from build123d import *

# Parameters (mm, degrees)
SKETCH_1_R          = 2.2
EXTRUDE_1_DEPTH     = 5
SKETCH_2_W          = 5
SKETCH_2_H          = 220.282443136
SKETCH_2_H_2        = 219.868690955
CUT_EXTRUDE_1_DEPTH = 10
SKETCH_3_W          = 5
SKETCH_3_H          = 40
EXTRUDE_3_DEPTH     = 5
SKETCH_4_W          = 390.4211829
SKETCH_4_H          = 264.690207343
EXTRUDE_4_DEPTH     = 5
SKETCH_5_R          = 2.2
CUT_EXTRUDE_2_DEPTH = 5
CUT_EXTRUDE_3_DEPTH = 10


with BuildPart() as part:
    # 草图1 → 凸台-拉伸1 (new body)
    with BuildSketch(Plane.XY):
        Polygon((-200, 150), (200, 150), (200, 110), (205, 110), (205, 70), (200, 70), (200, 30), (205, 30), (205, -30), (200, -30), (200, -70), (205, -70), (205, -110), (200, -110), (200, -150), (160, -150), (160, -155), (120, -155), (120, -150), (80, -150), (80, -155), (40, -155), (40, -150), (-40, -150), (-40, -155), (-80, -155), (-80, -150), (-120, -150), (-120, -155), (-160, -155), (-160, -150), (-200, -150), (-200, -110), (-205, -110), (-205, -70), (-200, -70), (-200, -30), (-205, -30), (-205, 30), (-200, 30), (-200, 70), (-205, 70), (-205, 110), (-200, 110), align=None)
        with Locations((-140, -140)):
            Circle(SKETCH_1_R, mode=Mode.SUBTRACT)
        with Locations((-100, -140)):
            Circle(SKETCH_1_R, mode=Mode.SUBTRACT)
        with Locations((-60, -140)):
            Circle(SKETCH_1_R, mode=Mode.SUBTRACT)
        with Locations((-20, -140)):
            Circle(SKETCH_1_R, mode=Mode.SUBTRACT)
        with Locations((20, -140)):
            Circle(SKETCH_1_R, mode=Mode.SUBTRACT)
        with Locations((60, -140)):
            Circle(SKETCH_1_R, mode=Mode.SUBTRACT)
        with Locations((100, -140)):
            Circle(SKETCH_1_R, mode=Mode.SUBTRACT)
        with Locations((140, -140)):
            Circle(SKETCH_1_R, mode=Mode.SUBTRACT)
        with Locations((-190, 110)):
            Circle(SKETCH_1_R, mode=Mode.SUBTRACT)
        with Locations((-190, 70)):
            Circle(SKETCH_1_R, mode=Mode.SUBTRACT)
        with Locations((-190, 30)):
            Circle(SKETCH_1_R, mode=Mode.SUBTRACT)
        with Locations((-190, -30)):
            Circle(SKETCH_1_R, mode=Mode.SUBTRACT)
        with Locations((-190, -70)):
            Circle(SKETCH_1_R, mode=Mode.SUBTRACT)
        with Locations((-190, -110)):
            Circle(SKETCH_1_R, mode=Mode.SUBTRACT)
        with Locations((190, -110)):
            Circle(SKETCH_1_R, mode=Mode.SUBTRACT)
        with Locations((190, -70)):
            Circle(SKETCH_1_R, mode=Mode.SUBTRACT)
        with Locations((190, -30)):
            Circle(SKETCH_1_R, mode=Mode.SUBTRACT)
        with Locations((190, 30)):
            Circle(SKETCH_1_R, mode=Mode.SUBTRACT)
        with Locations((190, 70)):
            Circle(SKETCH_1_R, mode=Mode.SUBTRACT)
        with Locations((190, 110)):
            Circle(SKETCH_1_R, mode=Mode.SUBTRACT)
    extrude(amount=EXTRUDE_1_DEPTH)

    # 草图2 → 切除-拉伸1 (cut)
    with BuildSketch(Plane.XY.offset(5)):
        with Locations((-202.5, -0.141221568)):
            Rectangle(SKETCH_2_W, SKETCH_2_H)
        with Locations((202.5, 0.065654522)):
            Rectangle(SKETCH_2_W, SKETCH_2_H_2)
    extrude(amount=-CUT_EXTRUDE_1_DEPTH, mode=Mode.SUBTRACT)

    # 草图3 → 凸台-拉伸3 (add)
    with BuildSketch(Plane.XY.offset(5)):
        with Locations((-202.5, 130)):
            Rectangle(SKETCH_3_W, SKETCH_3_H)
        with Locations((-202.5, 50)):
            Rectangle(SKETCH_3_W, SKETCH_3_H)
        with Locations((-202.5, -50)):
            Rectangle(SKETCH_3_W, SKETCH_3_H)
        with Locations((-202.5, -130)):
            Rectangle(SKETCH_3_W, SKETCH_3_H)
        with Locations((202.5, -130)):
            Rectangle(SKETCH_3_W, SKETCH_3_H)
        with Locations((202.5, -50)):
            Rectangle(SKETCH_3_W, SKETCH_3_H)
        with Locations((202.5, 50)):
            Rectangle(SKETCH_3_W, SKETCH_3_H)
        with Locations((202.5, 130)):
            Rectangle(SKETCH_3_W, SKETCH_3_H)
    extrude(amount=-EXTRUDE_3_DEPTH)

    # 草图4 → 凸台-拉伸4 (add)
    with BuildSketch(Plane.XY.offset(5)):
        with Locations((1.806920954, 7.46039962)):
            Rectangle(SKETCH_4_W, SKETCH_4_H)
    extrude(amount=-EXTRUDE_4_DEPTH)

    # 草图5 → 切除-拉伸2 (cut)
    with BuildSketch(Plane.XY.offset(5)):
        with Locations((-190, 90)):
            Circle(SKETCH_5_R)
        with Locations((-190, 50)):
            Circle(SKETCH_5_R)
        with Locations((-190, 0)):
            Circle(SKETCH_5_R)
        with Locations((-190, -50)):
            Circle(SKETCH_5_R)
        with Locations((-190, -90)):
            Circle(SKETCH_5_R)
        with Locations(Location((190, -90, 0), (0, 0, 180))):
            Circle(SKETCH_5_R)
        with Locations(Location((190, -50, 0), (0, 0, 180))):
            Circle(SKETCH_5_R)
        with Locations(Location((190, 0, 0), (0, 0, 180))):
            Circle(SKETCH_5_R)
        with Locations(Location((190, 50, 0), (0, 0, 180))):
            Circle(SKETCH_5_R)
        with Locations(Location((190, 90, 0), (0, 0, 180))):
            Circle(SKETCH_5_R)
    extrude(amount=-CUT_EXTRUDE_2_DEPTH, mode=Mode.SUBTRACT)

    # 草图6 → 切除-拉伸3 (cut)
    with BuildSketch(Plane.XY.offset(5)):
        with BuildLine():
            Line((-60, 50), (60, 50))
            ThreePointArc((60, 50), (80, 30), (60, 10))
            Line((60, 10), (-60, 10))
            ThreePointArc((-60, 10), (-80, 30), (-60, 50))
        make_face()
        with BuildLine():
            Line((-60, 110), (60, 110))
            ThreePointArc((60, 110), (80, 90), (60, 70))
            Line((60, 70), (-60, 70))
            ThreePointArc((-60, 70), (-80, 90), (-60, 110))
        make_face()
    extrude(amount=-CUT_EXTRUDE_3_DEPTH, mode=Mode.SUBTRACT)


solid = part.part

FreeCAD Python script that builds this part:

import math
import FreeCAD as App
import Part
import Sketcher
Q = App.Units.Quantity

doc = App.newDocument("Part")
body = doc.addObject("PartDesign::Body", "Body")

# Sketch on XY plane
sketch1 = body.newObject("Sketcher::SketchObject", "Sketch")
sketch1.AttachmentSupport = (doc.getObject("XY_Plane"), [""])
sketch1.MapMode = "FlatFace"
sketch1.addGeometry([
    Part.LineSegment(App.Vector(200, 150, 0), App.Vector(-200, 150, 0)),  # 0
    Part.LineSegment(App.Vector(-200, 150, 0), App.Vector(-200, 110, 0)),  # 1
    Part.LineSegment(App.Vector(-200, 110, 0), App.Vector(-205, 110, 0)),  # 2
    Part.LineSegment(App.Vector(-205, 110, 0), App.Vector(-205, 70, 0)),  # 3
    Part.LineSegment(App.Vector(-205, 70, 0), App.Vector(-200, 70, 0)),  # 4
    Part.LineSegment(App.Vector(-200, 70, 0), App.Vector(-200, 30, 0)),  # 5
    Part.LineSegment(App.Vector(-200, 30, 0), App.Vector(-205, 30, 0)),  # 6
    Part.LineSegment(App.Vector(-205, 30, 0), App.Vector(-205, -30, 0)),  # 7
    Part.LineSegment(App.Vector(-205, -30, 0), App.Vector(-200, -30, 0)),  # 8
    Part.LineSegment(App.Vector(-200, -30, 0), App.Vector(-200, -70, 0)),  # 9
    Part.LineSegment(App.Vector(-200, -70, 0), App.Vector(-205, -70, 0)),  # 10
    Part.LineSegment(App.Vector(-205, -70, 0), App.Vector(-205, -110, 0)),  # 11
    Part.LineSegment(App.Vector(-205, -110, 0), App.Vector(-200, -110, 0)),  # 12
    Part.LineSegment(App.Vector(-200, -110, 0), App.Vector(-200, -150, 0)),  # 13
    Part.LineSegment(App.Vector(-200, -150, 0), App.Vector(-160, -150, 0)),  # 14
    Part.LineSegment(App.Vector(-160, -150, 0), App.Vector(-160, -155, 0)),  # 15
    Part.LineSegment(App.Vector(-160, -155, 0), App.Vector(-120, -155, 0)),  # 16
    Part.LineSegment(App.Vector(-120, -155, 0), App.Vector(-120, -150, 0)),  # 17
    Part.LineSegment(App.Vector(-120, -150, 0), App.Vector(-80, -150, 0)),  # 18
    Part.LineSegment(App.Vector(-80, -150, 0), App.Vector(-80, -155, 0)),  # 19
    Part.LineSegment(App.Vector(-80, -155, 0), App.Vector(-40, -155, 0)),  # 20
    Part.LineSegment(App.Vector(-40, -155, 0), App.Vector(-40, -150, 0)),  # 21
    Part.LineSegment(App.Vector(-40, -150, 0), App.Vector(40, -150, 0)),  # 22
    Part.LineSegment(App.Vector(40, -150, 0), App.Vector(40, -155, 0)),  # 23
    Part.LineSegment(App.Vector(40, -155, 0), App.Vector(80, -155, 0)),  # 24
    Part.LineSegment(App.Vector(80, -155, 0), App.Vector(80, -150, 0)),  # 25
    Part.LineSegment(App.Vector(80, -150, 0), App.Vector(120, -150, 0)),  # 26
    Part.LineSegment(App.Vector(120, -150, 0), App.Vector(120, -155, 0)),  # 27
    Part.LineSegment(App.Vector(120, -155, 0), App.Vector(160, -155, 0)),  # 28
    Part.LineSegment(App.Vector(160, -155, 0), App.Vector(160, -150, 0)),  # 29
    Part.LineSegment(App.Vector(160, -150, 0), App.Vector(200, -150, 0)),  # 30
    Part.LineSegment(App.Vector(200, -150, 0), App.Vector(200, -110, 0)),  # 31
    Part.LineSegment(App.Vector(200, -110, 0), App.Vector(205, -110, 0)),  # 32
    Part.LineSegment(App.Vector(205, -110, 0), App.Vector(205, -70, 0)),  # 33
    Part.LineSegment(App.Vector(205, -70, 0), App.Vector(200, -70, 0)),  # 34
    Part.LineSegment(App.Vector(200, -70, 0), App.Vector(200, -30, 0)),  # 35
    Part.LineSegment(App.Vector(200, -30, 0), App.Vector(205, -30, 0)),  # 36
    Part.LineSegment(App.Vector(205, -30, 0), App.Vector(205, 30, 0)),  # 37
    Part.LineSegment(App.Vector(205, 30, 0), App.Vector(200, 30, 0)),  # 38
    Part.LineSegment(App.Vector(200, 30, 0), App.Vector(200, 70, 0)),  # 39
    Part.LineSegment(App.Vector(200, 70, 0), App.Vector(205, 70, 0)),  # 40
    Part.LineSegment(App.Vector(205, 70, 0), App.Vector(205, 110, 0)),  # 41
    Part.LineSegment(App.Vector(205, 110, 0), App.Vector(200, 110, 0)),  # 42
    Part.LineSegment(App.Vector(200, 110, 0), App.Vector(200, 150, 0)),  # 43
    Part.Circle(App.Vector(140, -140, 0), App.Vector(0, 0, 1), 2.2),  # 44
    Part.Circle(App.Vector(100, -140, 0), App.Vector(0, 0, 1), 2.2),  # 45
    Part.Circle(App.Vector(190, -110, 0), App.Vector(0, 0, 1), 2.2),  # 46
    Part.Circle(App.Vector(60, -140, 0), App.Vector(0, 0, 1), 2.2),  # 47
    Part.Circle(App.Vector(20, -140, 0), App.Vector(0, 0, 1), 2.2),  # 48
    Part.Circle(App.Vector(190, -70, 0), App.Vector(0, 0, 1), 2.2),  # 49
    Part.Circle(App.Vector(190, -30, 0), App.Vector(0, 0, 1), 2.2),  # 50
    Part.Circle(App.Vector(-20, -140, 0), App.Vector(0, 0, 1), 2.2),  # 51
    Part.Circle(App.Vector(-60, -140, 0), App.Vector(0, 0, 1), 2.2),  # 52
    Part.Circle(App.Vector(-100, -140, 0), App.Vector(0, 0, 1), 2.2),  # 53
    Part.Circle(App.Vector(-140, -140, 0), App.Vector(0, 0, 1), 2.2),  # 54
    Part.Circle(App.Vector(-190, -110, 0), App.Vector(0, 0, 1), 2.2),  # 55
    Part.Circle(App.Vector(-190, -70, 0), App.Vector(0, 0, 1), 2.2),  # 56
    Part.Circle(App.Vector(-190, -30, 0), App.Vector(0, 0, 1), 2.2),  # 57
    Part.Circle(App.Vector(190, 30, 0), App.Vector(0, 0, 1), 2.2),  # 58
    Part.Circle(App.Vector(190, 70, 0), App.Vector(0, 0, 1), 2.2),  # 59
    Part.Circle(App.Vector(190, 110, 0), App.Vector(0, 0, 1), 2.2),  # 60
    Part.Circle(App.Vector(-190, 30, 0), App.Vector(0, 0, 1), 2.2),  # 61
    Part.Circle(App.Vector(-190, 70, 0), App.Vector(0, 0, 1), 2.2),  # 62
    Part.Circle(App.Vector(-190, 110, 0), App.Vector(0, 0, 1), 2.2),  # 63
], False)
sketch1.addConstraint([
    Sketcher.Constraint("Coincident", 0, 2, 1, 1),
    Sketcher.Constraint("Coincident", 1, 2, 2, 1),
    Sketcher.Constraint("Coincident", 2, 2, 3, 1),
    Sketcher.Constraint("Coincident", 3, 2, 4, 1),
    Sketcher.Constraint("Coincident", 4, 2, 5, 1),
    Sketcher.Constraint("Coincident", 5, 2, 6, 1),
    Sketcher.Constraint("Coincident", 6, 2, 7, 1),
    Sketcher.Constraint("Coincident", 7, 2, 8, 1),
    Sketcher.Constraint("Coincident", 8, 2, 9, 1),
    Sketcher.Constraint("Coincident", 9, 2, 10, 1),
    Sketcher.Constraint("Coincident", 10, 2, 11, 1),
    Sketcher.Constraint("Coincident", 11, 2, 12, 1),
    Sketcher.Constraint("Coincident", 12, 2, 13, 1),
    Sketcher.Constraint("Coincident", 13, 2, 14, 1),
    Sketcher.Constraint("Coincident", 14, 2, 15, 1),
    Sketcher.Constraint("Coincident", 15, 2, 16, 1),
    Sketcher.Constraint("Coincident", 16, 2, 17, 1),
    Sketcher.Constraint("Coincident", 17, 2, 18, 1),
    Sketcher.Constraint("Coincident", 18, 2, 19, 1),
    Sketcher.Constraint("Coincident", 19, 2, 20, 1),
    Sketcher.Constraint("Coincident", 20, 2, 21, 1),
    Sketcher.Constraint("Coincident", 21, 2, 22, 1),
    Sketcher.Constraint("Coincident", 22, 2, 23, 1),
    Sketcher.Constraint("Coincident", 23, 2, 24, 1),
    Sketcher.Constraint("Coincident", 24, 2, 25, 1),
    Sketcher.Constraint("Coincident", 25, 2, 26, 1),
    Sketcher.Constraint("Coincident", 26, 2, 27, 1),
    Sketcher.Constraint("Coincident", 27, 2, 28, 1),
    Sketcher.Constraint("Coincident", 28, 2, 29, 1),
    Sketcher.Constraint("Coincident", 29, 2, 30, 1),
    Sketcher.Constraint("Coincident", 30, 2, 31, 1),
    Sketcher.Constraint("Coincident", 31, 2, 32, 1),
    Sketcher.Constraint("Coincident", 32, 2, 33, 1),
    Sketcher.Constraint("Coincident", 33, 2, 34, 1),
    Sketcher.Constraint("Coincident", 34, 2, 35, 1),
    Sketcher.Constraint("Coincident", 35, 2, 36, 1),
    Sketcher.Constraint("Coincident", 36, 2, 37, 1),
    Sketcher.Constraint("Coincident", 37, 2, 38, 1),
    Sketcher.Constraint("Coincident", 38, 2, 39, 1),
    Sketcher.Constraint("Coincident", 39, 2, 40, 1),
    Sketcher.Constraint("Coincident", 40, 2, 41, 1),
    Sketcher.Constraint("Coincident", 41, 2, 42, 1),
    Sketcher.Constraint("Coincident", 42, 2, 43, 1),
    Sketcher.Constraint("Coincident", 43, 2, 0, 1),
    Sketcher.Constraint("Horizontal", 0),
    Sketcher.Constraint("Vertical", 1),
    Sketcher.Constraint("Horizontal", 2),
    Sketcher.Constraint("Vertical", 3),
    Sketcher.Constraint("Horizontal", 4),
    Sketcher.Constraint("Vertical", 5),
    Sketcher.Constraint("Horizontal", 6),
    Sketcher.Constraint("Vertical", 7),
    Sketcher.Constraint("Horizontal", 8),
    Sketcher.Constraint("Vertical", 9),
    Sketcher.Constraint("Horizontal", 10),
    Sketcher.Constraint("Vertical", 11),
    Sketcher.Constraint("Horizontal", 12),
    Sketcher.Constraint("Vertical", 13),
    Sketcher.Constraint("Horizontal", 14),
    Sketcher.Constraint("Vertical", 15),
    Sketcher.Constraint("Horizontal", 16),
    Sketcher.Constraint("Vertical", 17),
    Sketcher.Constraint("Horizontal", 18),
    Sketcher.Constraint("Vertical", 19),
    Sketcher.Constraint("Horizontal", 20),
    Sketcher.Constraint("Vertical", 21),
    Sketcher.Constraint("Horizontal", 22),
    Sketcher.Constraint("Vertical", 23),
    Sketcher.Constraint("Horizontal", 24),
    Sketcher.Constraint("Vertical", 25),
    Sketcher.Constraint("Horizontal", 26),
    Sketcher.Constraint("Vertical", 27),
    Sketcher.Constraint("Horizontal", 28),
    Sketcher.Constraint("Vertical", 29),
    Sketcher.Constraint("Horizontal", 30),
    Sketcher.Constraint("Vertical", 31),
    Sketcher.Constraint("Horizontal", 32),
    Sketcher.Constraint("Vertical", 33),
    Sketcher.Constraint("Horizontal", 34),
    Sketcher.Constraint("Vertical", 35),
    Sketcher.Constraint("Horizontal", 36),
    Sketcher.Constraint("Vertical", 37),
    Sketcher.Constraint("Horizontal", 38),
    Sketcher.Constraint("Vertical", 39),
    Sketcher.Constraint("Horizontal", 40),
    Sketcher.Constraint("Vertical", 41),
    Sketcher.Constraint("Horizontal", 42),
    Sketcher.Constraint("Vertical", 43),
    Sketcher.Constraint("Equal", 44, 45),
    Sketcher.Constraint("Equal", 45, 46),
    Sketcher.Constraint("Equal", 46, 47),
    Sketcher.Constraint("Equal", 47, 48),
    Sketcher.Constraint("Equal", 48, 49),
    Sketcher.Constraint("Equal", 49, 50),
    Sketcher.Constraint("Equal", 50, 51),
    Sketcher.Constraint("Equal", 51, 52),
    Sketcher.Constraint("Equal", 52, 53),
    Sketcher.Constraint("Equal", 53, 54),
    Sketcher.Constraint("Equal", 54, 55),
    Sketcher.Constraint("Equal", 55, 56),
    Sketcher.Constraint("Equal", 56, 57),
    Sketcher.Constraint("Equal", 57, 58),
    Sketcher.Constraint("Equal", 58, 59),
    Sketcher.Constraint("Equal", 59, 60),
    Sketcher.Constraint("Equal", 60, 61),
    Sketcher.Constraint("Equal", 61, 62),
    Sketcher.Constraint("Equal", 62, 63),
    Sketcher.Constraint("Symmetric", 57, 3, 58, 3, -1, 1),
    Sketcher.Constraint("Symmetric", 56, 3, 59, 3, -1, 1),
    Sketcher.Constraint("Symmetric", 55, 3, 60, 3, -1, 1),
    Sketcher.Constraint("Symmetric", 50, 3, 61, 3, -1, 1),
    Sketcher.Constraint("Symmetric", 49, 3, 62, 3, -1, 1),
    Sketcher.Constraint("Symmetric", 46, 3, 63, 3, -1, 1),
    Sketcher.Constraint("Symmetric", 0, 2, 30, 2, -1, 1),
    Sketcher.Constraint("Symmetric", 2, 2, 32, 2, -1, 1),
    Sketcher.Constraint("Symmetric", 4, 2, 34, 2, -1, 1),
    Sketcher.Constraint("Symmetric", 6, 2, 36, 2, -1, 1),
    Sketcher.Constraint("Symmetric", 8, 2, 38, 2, -1, 1),
    Sketcher.Constraint("Symmetric", 10, 2, 40, 2, -1, 1),
    Sketcher.Constraint("Symmetric", 12, 2, 42, 2, -1, 1),
    Sketcher.Constraint("Symmetric", 48, 3, 51, 3, -2),
    Sketcher.Constraint("Symmetric", 47, 3, 52, 3, -2),
    Sketcher.Constraint("Symmetric", 45, 3, 53, 3, -2),
    Sketcher.Constraint("Symmetric", 44, 3, 54, 3, -2),
    Sketcher.Constraint("Symmetric", 46, 3, 55, 3, -2),
    Sketcher.Constraint("Symmetric", 49, 3, 56, 3, -2),
    Sketcher.Constraint("Symmetric", 50, 3, 57, 3, -2),
    Sketcher.Constraint("Symmetric", 20, 2, 23, 2, -2),
    Sketcher.Constraint("Symmetric", 18, 2, 25, 2, -2),
    Sketcher.Constraint("Symmetric", 16, 2, 27, 2, -2),
    Sketcher.Constraint("Symmetric", 14, 2, 29, 2, -2),
    Sketcher.Constraint("Symmetric", 12, 2, 31, 2, -2),
    Sketcher.Constraint("Symmetric", 10, 2, 33, 2, -2),
    Sketcher.Constraint("Symmetric", 8, 2, 35, 2, -2),
    Sketcher.Constraint("Horizontal", 44, 3, 45, 3),
    Sketcher.Constraint("Horizontal", 45, 3, 47, 3),
    Sketcher.Constraint("Horizontal", 47, 3, 48, 3),
    Sketcher.Constraint("Horizontal", 63, 3, 1, 2),
    Sketcher.Constraint("Horizontal", 62, 3, 3, 2),
    Sketcher.Constraint("Horizontal", 61, 3, 5, 2),
    Sketcher.Constraint("Horizontal", 14, 2, 17, 2),
    Sketcher.Constraint("Horizontal", 16, 2, 19, 2),
    Sketcher.Constraint("Horizontal", 18, 2, 21, 2),
    Sketcher.Constraint("Vertical", 46, 3, 49, 3),
    Sketcher.Constraint("Vertical", 49, 3, 50, 3),
    Sketcher.Constraint("Vertical", 1, 2, 4, 2),
    Sketcher.Constraint("Vertical", 3, 2, 6, 2),
    Sketcher.Constraint("Equal", 14, 16),
    Sketcher.Constraint("Equal", 16, 18),
    Sketcher.Constraint("Equal", 18, 20),
    Sketcher.Constraint("Equal", 30, 1),
    Sketcher.Constraint("Equal", 1, 3),
    Sketcher.Constraint("Equal", 3, 5),
    Sketcher.Constraint("Equal", 42, 15),
    Sketcher.Constraint("Diameter", 44, Q("4.4 mm")),
    Sketcher.Constraint("DistanceX", 0, 2, 0, 1, Q("400 mm")),
    Sketcher.Constraint("DistanceX", 2, 2, 2, 1, Q("5 mm")),
    Sketcher.Constraint("DistanceX", 14, 1, 14, 2, Q("40 mm")),
    Sketcher.Constraint("DistanceY", 7, 2, 7, 1, Q("60 mm")),
    Sketcher.Constraint("DistanceX", -1, 1, 44, 3, Q("140 mm")),
    Sketcher.Constraint("DistanceY", 44, 3, -1, 1, Q("140 mm")),
    Sketcher.Constraint("DistanceX", -1, 1, 45, 3, Q("100 mm")),
    Sketcher.Constraint("DistanceX", -1, 1, 46, 3, Q("190 mm")),
    Sketcher.Constraint("DistanceX", -1, 1, 47, 3, Q("60 mm")),
    Sketcher.Constraint("DistanceX", -1, 1, 48, 3, Q("20 mm")),
])
pad1 = body.newObject("PartDesign::Pad", "Pad")
pad1.Profile = sketch1
pad1.Length = 5

# Sketch on XY plane
sketch2 = body.newObject("Sketcher::SketchObject", "Sketch001")
sketch2.AttachmentSupport = (doc.getObject("XY_Plane"), [""])
sketch2.MapMode = "FlatFace"
sketch2.AttachmentOffset = App.Placement(App.Vector(0, 0, 5), App.Rotation())
sketch2.addGeometry([
    Part.LineSegment(App.Vector(-205, 110, 0), App.Vector(-205, -110, 0)),  # 0
    Part.LineSegment(App.Vector(-205, -110, 0), App.Vector(-200, -110, 0)),  # 1
    Part.LineSegment(App.Vector(-200, -110, 0), App.Vector(-200, 110, 0)),  # 2
    Part.LineSegment(App.Vector(-200, 110, 0), App.Vector(-205, 110, 0)),  # 3
    Part.LineSegment(App.Vector(200, 110, 0), App.Vector(200, -110, 0)),  # 4
    Part.LineSegment(App.Vector(200, -110, 0), App.Vector(205, -110, 0)),  # 5
    Part.LineSegment(App.Vector(205, -110, 0), App.Vector(205, 110, 0)),  # 6
    Part.LineSegment(App.Vector(205, 110, 0), App.Vector(200, 110, 0)),  # 7
], False)
sketch2.addConstraint([
    Sketcher.Constraint("Coincident", 0, 2, 1, 1),
    Sketcher.Constraint("Coincident", 1, 2, 2, 1),
    Sketcher.Constraint("Coincident", 2, 2, 3, 1),
    Sketcher.Constraint("Coincident", 3, 2, 0, 1),
    Sketcher.Constraint("Coincident", 4, 2, 5, 1),
    Sketcher.Constraint("Coincident", 5, 2, 6, 1),
    Sketcher.Constraint("Coincident", 6, 2, 7, 1),
    Sketcher.Constraint("Coincident", 7, 2, 4, 1),
    Sketcher.Constraint("Vertical", 0),
    Sketcher.Constraint("Horizontal", 1),
    Sketcher.Constraint("Vertical", 2),
    Sketcher.Constraint("Horizontal", 3),
    Sketcher.Constraint("Vertical", 4),
    Sketcher.Constraint("Horizontal", 5),
    Sketcher.Constraint("Vertical", 6),
    Sketcher.Constraint("Horizontal", 7),
    Sketcher.Constraint("Symmetric", 3, 2, 6, 2, -2),
    Sketcher.Constraint("Equal", 3, 5),
    Sketcher.Constraint("DistanceX", 1, 1, 1, 2, Q("5 mm")),
    Sketcher.Constraint("DistanceX", 0, 2, -1, 1, Q("205 mm")),
    Sketcher.Constraint("DistanceY", -1, 1, 2, 2, Q("110 mm")),
    Sketcher.Constraint("DistanceY", 4, 2, 4, 1, Q("219.868691 mm")),
    Sketcher.Constraint("DistanceY", 0, 2, 0, 1, Q("220.282443 mm")),
])
pocket1 = body.newObject("PartDesign::Pocket", "Pocket")
pocket1.Profile = sketch2
pocket1.Length = 10

# Sketch on XY plane
sketch3 = body.newObject("Sketcher::SketchObject", "Sketch002")
sketch3.AttachmentSupport = (doc.getObject("XY_Plane"), [""])
sketch3.MapMode = "FlatFace"
sketch3.AttachmentOffset = App.Placement(App.Vector(0, 0, 5), App.Rotation())
sketch3.addGeometry([
    Part.LineSegment(App.Vector(-205, 150, 0), App.Vector(-205, 110, 0)),  # 0
    Part.LineSegment(App.Vector(-205, 110, 0), App.Vector(-200, 110, 0)),  # 1
    Part.LineSegment(App.Vector(-200, 110, 0), App.Vector(-200, 150, 0)),  # 2
    Part.LineSegment(App.Vector(-200, 150, 0), App.Vector(-205, 150, 0)),  # 3
    Part.LineSegment(App.Vector(-205, 70, 0), App.Vector(-205, 30, 0)),  # 4
    Part.LineSegment(App.Vector(-205, 30, 0), App.Vector(-200, 30, 0)),  # 5
    Part.LineSegment(App.Vector(-200, 30, 0), App.Vector(-200, 70, 0)),  # 6
    Part.LineSegment(App.Vector(-200, 70, 0), App.Vector(-205, 70, 0)),  # 7
    Part.LineSegment(App.Vector(-205, -30, 0), App.Vector(-205, -70, 0)),  # 8
    Part.LineSegment(App.Vector(-205, -70, 0), App.Vector(-200, -70, 0)),  # 9
    Part.LineSegment(App.Vector(-200, -70, 0), App.Vector(-200, -30, 0)),  # 10
    Part.LineSegment(App.Vector(-200, -30, 0), App.Vector(-205, -30, 0)),  # 11
    Part.LineSegment(App.Vector(-205, -110, 0), App.Vector(-205, -150, 0)),  # 12
    Part.LineSegment(App.Vector(-205, -150, 0), App.Vector(-200, -150, 0)),  # 13
    Part.LineSegment(App.Vector(-200, -150, 0), App.Vector(-200, -110, 0)),  # 14
    Part.LineSegment(App.Vector(-200, -110, 0), App.Vector(-205, -110, 0)),  # 15
    Part.LineSegment(App.Vector(200, -110, 0), App.Vector(200, -150, 0)),  # 16
    Part.LineSegment(App.Vector(200, -150, 0), App.Vector(205, -150, 0)),  # 17
    Part.LineSegment(App.Vector(205, -150, 0), App.Vector(205, -110, 0)),  # 18
    Part.LineSegment(App.Vector(205, -110, 0), App.Vector(200, -110, 0)),  # 19
    Part.LineSegment(App.Vector(200, -30, 0), App.Vector(200, -70, 0)),  # 20
    Part.LineSegment(App.Vector(200, -70, 0), App.Vector(205, -70, 0)),  # 21
    Part.LineSegment(App.Vector(205, -70, 0), App.Vector(205, -30, 0)),  # 22
    Part.LineSegment(App.Vector(205, -30, 0), App.Vector(200, -30, 0)),  # 23
    Part.LineSegment(App.Vector(200, 70, 0), App.Vector(200, 30, 0)),  # 24
    Part.LineSegment(App.Vector(200, 30, 0), App.Vector(205, 30, 0)),  # 25
    Part.LineSegment(App.Vector(205, 30, 0), App.Vector(205, 70, 0)),  # 26
    Part.LineSegment(App.Vector(205, 70, 0), App.Vector(200, 70, 0)),  # 27
    Part.LineSegment(App.Vector(200, 150, 0), App.Vector(200, 110, 0)),  # 28
    Part.LineSegment(App.Vector(200, 110, 0), App.Vector(205, 110, 0)),  # 29
    Part.LineSegment(App.Vector(205, 110, 0), App.Vector(205, 150, 0)),  # 30
    Part.LineSegment(App.Vector(205, 150, 0), App.Vector(200, 150, 0)),  # 31
], False)
sketch3.addConstraint([
    Sketcher.Constraint("Coincident", 0, 2, 1, 1),
    Sketcher.Constraint("Coincident", 1, 2, 2, 1),
    Sketcher.Constraint("Coincident", 2, 2, 3, 1),
    Sketcher.Constraint("Coincident", 3, 2, 0, 1),
    Sketcher.Constraint("Coincident", 4, 2, 5, 1),
    Sketcher.Constraint("Coincident", 5, 2, 6, 1),
    Sketcher.Constraint("Coincident", 6, 2, 7, 1),
    Sketcher.Constraint("Coincident", 7, 2, 4, 1),
    Sketcher.Constraint("Coincident", 8, 2, 9, 1),
    Sketcher.Constraint("Coincident", 9, 2, 10, 1),
    Sketcher.Constraint("Coincident", 10, 2, 11, 1),
    Sketcher.Constraint("Coincident", 11, 2, 8, 1),
    Sketcher.Constraint("Coincident", 12, 2, 13, 1),
    Sketcher.Constraint("Coincident", 13, 2, 14, 1),
    Sketcher.Constraint("Coincident", 14, 2, 15, 1),
    Sketcher.Constraint("Coincident", 15, 2, 12, 1),
    Sketcher.Constraint("Coincident", 16, 2, 17, 1),
    Sketcher.Constraint("Coincident", 17, 2, 18, 1),
    Sketcher.Constraint("Coincident", 18, 2, 19, 1),
    Sketcher.Constraint("Coincident", 19, 2, 16, 1),
    Sketcher.Constraint("Coincident", 20, 2, 21, 1),
    Sketcher.Constraint("Coincident", 21, 2, 22, 1),
    Sketcher.Constraint("Coincident", 22, 2, 23, 1),
    Sketcher.Constraint("Coincident", 23, 2, 20, 1),
    Sketcher.Constraint("Coincident", 24, 2, 25, 1),
    Sketcher.Constraint("Coincident", 25, 2, 26, 1),
    Sketcher.Constraint("Coincident", 26, 2, 27, 1),
    Sketcher.Constraint("Coincident", 27, 2, 24, 1),
    Sketcher.Constraint("Coincident", 28, 2, 29, 1),
    Sketcher.Constraint("Coincident", 29, 2, 30, 1),
    Sketcher.Constraint("Coincident", 30, 2, 31, 1),
    Sketcher.Constraint("Coincident", 31, 2, 28, 1),
    Sketcher.Constraint("Vertical", 0),
    Sketcher.Constraint("Horizontal", 1),
    Sketcher.Constraint("Vertical", 2),
    Sketcher.Constraint("Horizontal", 3),
    Sketcher.Constraint("Vertical", 4),
    Sketcher.Constraint("Horizontal", 5),
    Sketcher.Constraint("Vertical", 6),
    Sketcher.Constraint("Horizontal", 7),
    Sketcher.Constraint("Vertical", 8),
    Sketcher.Constraint("Horizontal", 9),
    Sketcher.Constraint("Vertical", 10),
    Sketcher.Constraint("Horizontal", 11),
    Sketcher.Constraint("Vertical", 12),
    Sketcher.Constraint("Horizontal", 13),
    Sketcher.Constraint("Vertical", 14),
    Sketcher.Constraint("Horizontal", 15),
    Sketcher.Constraint("Vertical", 16),
    Sketcher.Constraint("Horizontal", 17),
    Sketcher.Constraint("Vertical", 18),
    Sketcher.Constraint("Horizontal", 19),
    Sketcher.Constraint("Vertical", 20),
    Sketcher.Constraint("Horizontal", 21),
    Sketcher.Constraint("Vertical", 22),
    Sketcher.Constraint("Horizontal", 23),
    Sketcher.Constraint("Vertical", 24),
    Sketcher.Constraint("Horizontal", 25),
    Sketcher.Constraint("Vertical", 26),
    Sketcher.Constraint("Horizontal", 27),
    Sketcher.Constraint("Vertical", 28),
    Sketcher.Constraint("Horizontal", 29),
    Sketcher.Constraint("Vertical", 30),
    Sketcher.Constraint("Horizontal", 31),
    Sketcher.Constraint("Symmetric", 2, 2, 16, 2, -1, 1),
    Sketcher.Constraint("Symmetric", 0, 2, 18, 2, -1, 1),
    Sketcher.Constraint("Symmetric", 6, 2, 20, 2, -1, 1),
    Sketcher.Constraint("Symmetric", 4, 2, 22, 2, -1, 1),
    Sketcher.Constraint("Symmetric", 10, 2, 24, 2, -1, 1),
    Sketcher.Constraint("Symmetric", 8, 2, 26, 2, -1, 1),
    Sketcher.Constraint("Symmetric", 14, 2, 28, 2, -1, 1),
    Sketcher.Constraint("Symmetric", 12, 2, 30, 2, -1, 1),
    Sketcher.Constraint("Symmetric", 13, 2, 16, 2, -2),
    Sketcher.Constraint("Symmetric", 15, 2, 18, 2, -2),
    Sketcher.Constraint("Symmetric", 9, 2, 20, 2, -2),
    Sketcher.Constraint("Symmetric", 11, 2, 22, 2, -2),
    Sketcher.Constraint("Vertical", 3, 2, 4, 2),
    Sketcher.Constraint("Vertical", 2, 2, 5, 2),
    Sketcher.Constraint("Equal", 2, 4),
    Sketcher.Constraint("DistanceX", 1, 1, 1, 2, Q("5 mm")),
    Sketcher.Constraint("DistanceY", 0, 2, 0, 1, Q("40 mm")),
    Sketcher.Constraint("DistanceX", 0, 2, -1, 1, Q("205 mm")),
    Sketcher.Constraint("DistanceY", -1, 1, 0, 2, Q("110 mm")),
    Sketcher.Constraint("DistanceY", -1, 1, 4, 2, Q("30 mm")),
])
pad2 = body.newObject("PartDesign::Pad", "Pad001")
pad2.Profile = sketch3
pad2.Length = 5
pad2.Reversed = True

# Sketch on XY plane
sketch4 = body.newObject("Sketcher::SketchObject", "Sketch003")
sketch4.AttachmentSupport = (doc.getObject("XY_Plane"), [""])
sketch4.MapMode = "FlatFace"
sketch4.AttachmentOffset = App.Placement(App.Vector(0, 0, 5), App.Rotation())
sketch4.addGeometry([
    Part.LineSegment(App.Vector(-193, 140, 0), App.Vector(-193, -125, 0)),
    Part.LineSegment(App.Vector(-193, -125, 0), App.Vector(197, -125, 0)),
    Part.LineSegment(App.Vector(197, -125, 0), App.Vector(197, 140, 0)),
    Part.LineSegment(App.Vector(197, 140, 0), App.Vector(-193, 140, 0)),
], False)
sketch4.addConstraint([
    Sketcher.Constraint("Coincident", 0, 2, 1, 1),
    Sketcher.Constraint("Coincident", 1, 2, 2, 1),
    Sketcher.Constraint("Coincident", 2, 2, 3, 1),
    Sketcher.Constraint("Coincident", 3, 2, 0, 1),
    Sketcher.Constraint("Vertical", 0),
    Sketcher.Constraint("Horizontal", 1),
    Sketcher.Constraint("Vertical", 2),
    Sketcher.Constraint("Horizontal", 3),
    Sketcher.Constraint("DistanceX", 1, 1, 1, 2, Q("390.421183 mm")),
    Sketcher.Constraint("DistanceY", 0, 2, 0, 1, Q("264.690207 mm")),
    Sketcher.Constraint("DistanceX", 0, 2, -1, 1, Q("193.40367 mm")),
    Sketcher.Constraint("DistanceY", 0, 2, -1, 1, Q("124.884704 mm")),
])
pad3 = body.newObject("PartDesign::Pad", "Pad002")
pad3.Profile = sketch4
pad3.Length = 5
pad3.Reversed = True

# Sketch on XY plane
sketch5 = body.newObject("Sketcher::SketchObject", "Sketch004")
sketch5.AttachmentSupport = (doc.getObject("XY_Plane"), [""])
sketch5.MapMode = "FlatFace"
sketch5.AttachmentOffset = App.Placement(App.Vector(0, 0, 5), App.Rotation())
sketch5.addGeometry([
    Part.Circle(App.Vector(-190, 90, 0), App.Vector(0, 0, 1), 2.2),  # 0
    Part.Circle(App.Vector(-190, 50, 0), App.Vector(0, 0, 1), 2.2),  # 1
    Part.Circle(App.Vector(-190, 0, 0), App.Vector(0, 0, 1), 2.2),  # 2
    Part.Circle(App.Vector(-190, -50, 0), App.Vector(0, 0, 1), 2.2),  # 3
    Part.Circle(App.Vector(-190, -90, 0), App.Vector(0, 0, 1), 2.2),  # 4
    Part.Circle(App.Vector(190, -90, 0), App.Vector(0, 0, 1), 2.2),  # 5
    Part.Circle(App.Vector(190, -50, 0), App.Vector(0, 0, 1), 2.2),  # 6
    Part.Circle(App.Vector(190, 0, 0), App.Vector(0, 0, 1), 2.2),  # 7
    Part.Circle(App.Vector(190, 50, 0), App.Vector(0, 0, 1), 2.2),  # 8
    Part.Circle(App.Vector(190, 90, 0), App.Vector(0, 0, 1), 2.2),  # 9
], False)
sketch5.addConstraint([
    Sketcher.Constraint("Equal", 0, 1),
    Sketcher.Constraint("Equal", 1, 2),
    Sketcher.Constraint("Equal", 2, 3),
    Sketcher.Constraint("Equal", 3, 4),
    Sketcher.Constraint("Equal", 4, 5),
    Sketcher.Constraint("Equal", 5, 6),
    Sketcher.Constraint("Equal", 6, 7),
    Sketcher.Constraint("Equal", 7, 8),
    Sketcher.Constraint("Equal", 8, 9),
    Sketcher.Constraint("Symmetric", 0, 3, 5, 3, -1, 1),
    Sketcher.Constraint("Symmetric", 1, 3, 6, 3, -1, 1),
    Sketcher.Constraint("Symmetric", 2, 3, 7, 3, -1, 1),
    Sketcher.Constraint("Symmetric", 3, 3, 8, 3, -1, 1),
    Sketcher.Constraint("Symmetric", 4, 3, 9, 3, -1, 1),
    Sketcher.Constraint("Symmetric", 4, 3, 5, 3, -2),
    Sketcher.Constraint("Symmetric", 3, 3, 6, 3, -2),
    Sketcher.Constraint("PointOnObject", 2, 3, -1),
    Sketcher.Constraint("Vertical", 0, 3, 1, 3),
    Sketcher.Constraint("Vertical", 1, 3, 2, 3),
    Sketcher.Constraint("Diameter", 0, Q("4.4 mm")),
    Sketcher.Constraint("DistanceX", 0, 3, -1, 1, Q("190 mm")),
    Sketcher.Constraint("DistanceY", -1, 1, 0, 3, Q("90 mm")),
    Sketcher.Constraint("DistanceY", -1, 1, 1, 3, Q("50 mm")),
])
pocket2 = body.newObject("PartDesign::Pocket", "Pocket001")
pocket2.Profile = sketch5
pocket2.Length = 5

# Sketch on XY plane
sketch6 = body.newObject("Sketcher::SketchObject", "Sketch005")
sketch6.AttachmentSupport = (doc.getObject("XY_Plane"), [""])
sketch6.MapMode = "FlatFace"
sketch6.AttachmentOffset = App.Placement(App.Vector(0, 0, 5), App.Rotation())
sketch6.addGeometry([
    Part.LineSegment(App.Vector(60, 50, 0), App.Vector(-60, 50, 0)),  # 0
    Part.ArcOfCircle(Part.Circle(App.Vector(-60, 30, 0), App.Vector(0, 0, 1), 20), math.radians(90), math.radians(270)),  # 1
    Part.LineSegment(App.Vector(-60, 10, 0), App.Vector(60, 10, 0)),  # 2
    Part.ArcOfCircle(Part.Circle(App.Vector(60, 30, 0), App.Vector(0, 0, 1), 20), math.radians(-90), math.radians(90)),  # 3
    Part.LineSegment(App.Vector(60, 110, 0), App.Vector(-60, 110, 0)),  # 4
    Part.ArcOfCircle(Part.Circle(App.Vector(-60, 90, 0), App.Vector(0, 0, 1), 20), math.radians(90), math.radians(270)),  # 5
    Part.LineSegment(App.Vector(-60, 70, 0), App.Vector(60, 70, 0)),  # 6
    Part.ArcOfCircle(Part.Circle(App.Vector(60, 90, 0), App.Vector(0, 0, 1), 20), math.radians(-90), math.radians(90)),  # 7
], False)
sketch6.addConstraint([
    Sketcher.Constraint("Tangent", 0, 2, 1, 1),
    Sketcher.Constraint("Tangent", 1, 2, 2, 1),
    Sketcher.Constraint("Tangent", 2, 2, 3, 1),
    Sketcher.Constraint("Tangent", 3, 2, 0, 1),
    Sketcher.Constraint("Tangent", 4, 2, 5, 1),
    Sketcher.Constraint("Tangent", 5, 2, 6, 1),
    Sketcher.Constraint("Tangent", 6, 2, 7, 1),
    Sketcher.Constraint("Tangent", 7, 2, 4, 1),
    Sketcher.Constraint("Horizontal", 0),
    Sketcher.Constraint("Horizontal", 2),
    Sketcher.Constraint("Horizontal", 4),
    Sketcher.Constraint("Horizontal", 6),
    Sketcher.Constraint("Equal", 3, 5),
    Sketcher.Constraint("Vertical", 1, 3, 5, 3),
    Sketcher.Constraint("Vertical", 3, 3, 7, 3),
    Sketcher.Constraint("Radius", 1, Q("20 mm")),
    Sketcher.Constraint("DistanceX", 0, 2, 0, 1, Q("120 mm")),
    Sketcher.Constraint("DistanceX", 1, 3, -1, 1, Q("60 mm")),
    Sketcher.Constraint("DistanceY", -1, 1, 1, 3, Q("30 mm")),
    Sketcher.Constraint("DistanceY", -1, 1, 5, 3, Q("90 mm")),
])
pocket3 = body.newObject("PartDesign::Pocket", "Pocket002")
pocket3.Profile = sketch6
pocket3.Length = 10

doc.recompute()
